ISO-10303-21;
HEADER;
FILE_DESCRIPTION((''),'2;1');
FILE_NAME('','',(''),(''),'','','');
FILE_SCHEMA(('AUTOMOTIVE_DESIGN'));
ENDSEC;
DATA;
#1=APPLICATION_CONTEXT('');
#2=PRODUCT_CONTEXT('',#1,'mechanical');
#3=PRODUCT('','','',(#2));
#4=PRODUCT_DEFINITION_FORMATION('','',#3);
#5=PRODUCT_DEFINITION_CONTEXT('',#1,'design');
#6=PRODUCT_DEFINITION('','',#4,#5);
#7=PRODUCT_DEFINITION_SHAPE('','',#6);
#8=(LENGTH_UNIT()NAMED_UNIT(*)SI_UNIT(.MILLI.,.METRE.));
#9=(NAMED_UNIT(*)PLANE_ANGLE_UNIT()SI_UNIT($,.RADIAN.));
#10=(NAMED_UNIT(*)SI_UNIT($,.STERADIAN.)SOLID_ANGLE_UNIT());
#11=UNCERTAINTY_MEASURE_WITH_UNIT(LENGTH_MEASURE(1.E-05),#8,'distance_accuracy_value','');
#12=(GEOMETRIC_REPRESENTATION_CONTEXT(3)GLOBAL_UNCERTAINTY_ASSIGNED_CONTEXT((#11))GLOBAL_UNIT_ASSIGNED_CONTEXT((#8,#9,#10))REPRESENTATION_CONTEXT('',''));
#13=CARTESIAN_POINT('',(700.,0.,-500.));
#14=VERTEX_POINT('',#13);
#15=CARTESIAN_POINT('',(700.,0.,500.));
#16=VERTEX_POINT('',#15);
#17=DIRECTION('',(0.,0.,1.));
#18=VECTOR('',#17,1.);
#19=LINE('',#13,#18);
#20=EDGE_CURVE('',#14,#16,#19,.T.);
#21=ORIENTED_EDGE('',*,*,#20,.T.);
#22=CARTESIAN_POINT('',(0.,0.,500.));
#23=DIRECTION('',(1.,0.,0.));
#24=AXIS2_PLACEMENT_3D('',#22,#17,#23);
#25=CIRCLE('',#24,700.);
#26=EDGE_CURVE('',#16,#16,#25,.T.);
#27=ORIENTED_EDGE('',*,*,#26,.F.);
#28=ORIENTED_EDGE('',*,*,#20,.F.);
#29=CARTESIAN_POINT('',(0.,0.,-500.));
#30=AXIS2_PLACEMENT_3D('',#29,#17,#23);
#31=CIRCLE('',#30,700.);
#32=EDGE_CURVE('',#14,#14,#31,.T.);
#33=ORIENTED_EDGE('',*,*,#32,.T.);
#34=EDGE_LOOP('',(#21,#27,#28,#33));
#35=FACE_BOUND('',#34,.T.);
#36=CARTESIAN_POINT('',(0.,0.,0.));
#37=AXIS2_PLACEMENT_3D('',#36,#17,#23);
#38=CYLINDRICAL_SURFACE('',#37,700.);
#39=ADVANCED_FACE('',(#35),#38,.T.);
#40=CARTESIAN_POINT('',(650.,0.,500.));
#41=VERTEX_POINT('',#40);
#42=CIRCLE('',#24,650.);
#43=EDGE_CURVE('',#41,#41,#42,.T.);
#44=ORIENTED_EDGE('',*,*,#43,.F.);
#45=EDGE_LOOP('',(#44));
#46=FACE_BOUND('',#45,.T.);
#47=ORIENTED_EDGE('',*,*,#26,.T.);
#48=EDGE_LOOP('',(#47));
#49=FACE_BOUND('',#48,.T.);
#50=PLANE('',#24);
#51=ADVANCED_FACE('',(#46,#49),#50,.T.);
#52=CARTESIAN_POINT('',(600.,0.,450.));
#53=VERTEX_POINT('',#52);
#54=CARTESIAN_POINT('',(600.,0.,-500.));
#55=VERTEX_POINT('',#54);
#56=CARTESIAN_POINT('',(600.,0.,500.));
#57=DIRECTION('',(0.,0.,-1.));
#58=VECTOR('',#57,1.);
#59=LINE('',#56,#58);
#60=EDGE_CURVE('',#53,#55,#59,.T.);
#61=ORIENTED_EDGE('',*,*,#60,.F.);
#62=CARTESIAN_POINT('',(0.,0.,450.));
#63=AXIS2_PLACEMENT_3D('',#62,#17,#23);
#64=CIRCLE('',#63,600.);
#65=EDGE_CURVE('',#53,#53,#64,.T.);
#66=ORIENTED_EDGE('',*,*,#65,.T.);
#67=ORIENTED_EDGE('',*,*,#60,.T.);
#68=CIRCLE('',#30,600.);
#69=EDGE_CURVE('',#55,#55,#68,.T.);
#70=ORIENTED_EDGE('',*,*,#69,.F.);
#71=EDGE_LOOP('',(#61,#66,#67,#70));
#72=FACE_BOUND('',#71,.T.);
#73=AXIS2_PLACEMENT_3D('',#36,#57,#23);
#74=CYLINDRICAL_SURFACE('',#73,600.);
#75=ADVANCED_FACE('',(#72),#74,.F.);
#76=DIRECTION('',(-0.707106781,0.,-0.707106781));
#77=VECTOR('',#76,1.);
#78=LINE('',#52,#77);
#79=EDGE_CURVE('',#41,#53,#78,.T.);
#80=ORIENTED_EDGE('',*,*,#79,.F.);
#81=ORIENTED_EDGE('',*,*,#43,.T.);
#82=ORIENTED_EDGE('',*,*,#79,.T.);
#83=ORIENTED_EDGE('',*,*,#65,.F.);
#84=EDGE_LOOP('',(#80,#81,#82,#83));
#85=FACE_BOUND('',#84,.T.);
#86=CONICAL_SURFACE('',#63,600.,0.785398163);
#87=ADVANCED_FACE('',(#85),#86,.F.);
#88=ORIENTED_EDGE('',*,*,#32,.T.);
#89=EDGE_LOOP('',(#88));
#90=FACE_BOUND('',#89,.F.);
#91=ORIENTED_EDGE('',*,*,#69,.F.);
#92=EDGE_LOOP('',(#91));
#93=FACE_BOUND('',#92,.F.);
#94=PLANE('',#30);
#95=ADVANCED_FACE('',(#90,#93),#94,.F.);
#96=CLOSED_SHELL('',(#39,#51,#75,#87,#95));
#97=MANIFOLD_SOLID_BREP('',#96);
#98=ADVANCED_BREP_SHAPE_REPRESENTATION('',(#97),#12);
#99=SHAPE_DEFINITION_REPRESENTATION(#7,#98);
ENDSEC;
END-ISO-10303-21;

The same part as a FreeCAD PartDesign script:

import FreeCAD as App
import Part
import Sketcher

V = App.Vector
Q = App.Units.Quantity


def edges_at(feature, points):
    """Names of the edges that pass closest to the given points."""
    edges = feature.Shape.Edges
    near = lambda p: min(range(len(edges)), key=lambda i: edges[i].distToShape(Part.Vertex(*p))[0])
    return sorted({f"Edge{near(p) + 1}" for p in points})

doc = App.newDocument("Part")
params = doc.addObject("Spreadsheet::Sheet", "Params")
for row, (alias, value) in enumerate([
    ("sketch1_diameter", "1400 mm"),
    ("sketch1_diameter2", "1200 mm"),
    ("pad1_length", "1000 mm"),
    ("chamfer_size", "50 mm"),
], start=1):
    params.set(f"A{row}", alias)
    params.set(f"B{row}", "=" + value)
    params.setAlias(f"B{row}", alias)

body = doc.addObject("PartDesign::Body", "Body")

sketch1 = body.newObject("Sketcher::SketchObject", "Sketch")
sketch1.AttachmentSupport = (doc.getObject("XY_Plane"), [""])
sketch1.MapMode = "FlatFace"
sketch1.addGeometry(Part.Circle(V(0, 0, 0), V(0, 0, 1), 700), False)
sketch1.addGeometry(Part.Circle(V(0, 0, 0), V(0, 0, 1), 600), False)
sketch1.addConstraint(Sketcher.Constraint("Coincident", 0, 3, -1, 1))
sketch1.addConstraint(Sketcher.Constraint("Coincident", 1, 3, -1, 1))
sketch1.addConstraint(Sketcher.Constraint("Diameter", 0, Q("1400 mm")))
sketch1.addConstraint(Sketcher.Constraint("Diameter", 1, Q("1200 mm")))
sketch1.setExpression("Constraints[2]", "Params.sketch1_diameter")
sketch1.setExpression("Constraints[3]", "Params.sketch1_diameter2")
pad1 = body.newObject("PartDesign::Pad", "Pad")
pad1.Profile = sketch1
pad1.setExpression("Length", "Params.pad1_length")
pad1.Midplane = True
doc.recompute()

chamfer = body.newObject("PartDesign::Chamfer", "Chamfer")
chamfer.Base = (pad1, edges_at(pad1, [(-600, 0, 500)]))
chamfer.setExpression("Size", "Params.chamfer_size")

doc.recompute()
